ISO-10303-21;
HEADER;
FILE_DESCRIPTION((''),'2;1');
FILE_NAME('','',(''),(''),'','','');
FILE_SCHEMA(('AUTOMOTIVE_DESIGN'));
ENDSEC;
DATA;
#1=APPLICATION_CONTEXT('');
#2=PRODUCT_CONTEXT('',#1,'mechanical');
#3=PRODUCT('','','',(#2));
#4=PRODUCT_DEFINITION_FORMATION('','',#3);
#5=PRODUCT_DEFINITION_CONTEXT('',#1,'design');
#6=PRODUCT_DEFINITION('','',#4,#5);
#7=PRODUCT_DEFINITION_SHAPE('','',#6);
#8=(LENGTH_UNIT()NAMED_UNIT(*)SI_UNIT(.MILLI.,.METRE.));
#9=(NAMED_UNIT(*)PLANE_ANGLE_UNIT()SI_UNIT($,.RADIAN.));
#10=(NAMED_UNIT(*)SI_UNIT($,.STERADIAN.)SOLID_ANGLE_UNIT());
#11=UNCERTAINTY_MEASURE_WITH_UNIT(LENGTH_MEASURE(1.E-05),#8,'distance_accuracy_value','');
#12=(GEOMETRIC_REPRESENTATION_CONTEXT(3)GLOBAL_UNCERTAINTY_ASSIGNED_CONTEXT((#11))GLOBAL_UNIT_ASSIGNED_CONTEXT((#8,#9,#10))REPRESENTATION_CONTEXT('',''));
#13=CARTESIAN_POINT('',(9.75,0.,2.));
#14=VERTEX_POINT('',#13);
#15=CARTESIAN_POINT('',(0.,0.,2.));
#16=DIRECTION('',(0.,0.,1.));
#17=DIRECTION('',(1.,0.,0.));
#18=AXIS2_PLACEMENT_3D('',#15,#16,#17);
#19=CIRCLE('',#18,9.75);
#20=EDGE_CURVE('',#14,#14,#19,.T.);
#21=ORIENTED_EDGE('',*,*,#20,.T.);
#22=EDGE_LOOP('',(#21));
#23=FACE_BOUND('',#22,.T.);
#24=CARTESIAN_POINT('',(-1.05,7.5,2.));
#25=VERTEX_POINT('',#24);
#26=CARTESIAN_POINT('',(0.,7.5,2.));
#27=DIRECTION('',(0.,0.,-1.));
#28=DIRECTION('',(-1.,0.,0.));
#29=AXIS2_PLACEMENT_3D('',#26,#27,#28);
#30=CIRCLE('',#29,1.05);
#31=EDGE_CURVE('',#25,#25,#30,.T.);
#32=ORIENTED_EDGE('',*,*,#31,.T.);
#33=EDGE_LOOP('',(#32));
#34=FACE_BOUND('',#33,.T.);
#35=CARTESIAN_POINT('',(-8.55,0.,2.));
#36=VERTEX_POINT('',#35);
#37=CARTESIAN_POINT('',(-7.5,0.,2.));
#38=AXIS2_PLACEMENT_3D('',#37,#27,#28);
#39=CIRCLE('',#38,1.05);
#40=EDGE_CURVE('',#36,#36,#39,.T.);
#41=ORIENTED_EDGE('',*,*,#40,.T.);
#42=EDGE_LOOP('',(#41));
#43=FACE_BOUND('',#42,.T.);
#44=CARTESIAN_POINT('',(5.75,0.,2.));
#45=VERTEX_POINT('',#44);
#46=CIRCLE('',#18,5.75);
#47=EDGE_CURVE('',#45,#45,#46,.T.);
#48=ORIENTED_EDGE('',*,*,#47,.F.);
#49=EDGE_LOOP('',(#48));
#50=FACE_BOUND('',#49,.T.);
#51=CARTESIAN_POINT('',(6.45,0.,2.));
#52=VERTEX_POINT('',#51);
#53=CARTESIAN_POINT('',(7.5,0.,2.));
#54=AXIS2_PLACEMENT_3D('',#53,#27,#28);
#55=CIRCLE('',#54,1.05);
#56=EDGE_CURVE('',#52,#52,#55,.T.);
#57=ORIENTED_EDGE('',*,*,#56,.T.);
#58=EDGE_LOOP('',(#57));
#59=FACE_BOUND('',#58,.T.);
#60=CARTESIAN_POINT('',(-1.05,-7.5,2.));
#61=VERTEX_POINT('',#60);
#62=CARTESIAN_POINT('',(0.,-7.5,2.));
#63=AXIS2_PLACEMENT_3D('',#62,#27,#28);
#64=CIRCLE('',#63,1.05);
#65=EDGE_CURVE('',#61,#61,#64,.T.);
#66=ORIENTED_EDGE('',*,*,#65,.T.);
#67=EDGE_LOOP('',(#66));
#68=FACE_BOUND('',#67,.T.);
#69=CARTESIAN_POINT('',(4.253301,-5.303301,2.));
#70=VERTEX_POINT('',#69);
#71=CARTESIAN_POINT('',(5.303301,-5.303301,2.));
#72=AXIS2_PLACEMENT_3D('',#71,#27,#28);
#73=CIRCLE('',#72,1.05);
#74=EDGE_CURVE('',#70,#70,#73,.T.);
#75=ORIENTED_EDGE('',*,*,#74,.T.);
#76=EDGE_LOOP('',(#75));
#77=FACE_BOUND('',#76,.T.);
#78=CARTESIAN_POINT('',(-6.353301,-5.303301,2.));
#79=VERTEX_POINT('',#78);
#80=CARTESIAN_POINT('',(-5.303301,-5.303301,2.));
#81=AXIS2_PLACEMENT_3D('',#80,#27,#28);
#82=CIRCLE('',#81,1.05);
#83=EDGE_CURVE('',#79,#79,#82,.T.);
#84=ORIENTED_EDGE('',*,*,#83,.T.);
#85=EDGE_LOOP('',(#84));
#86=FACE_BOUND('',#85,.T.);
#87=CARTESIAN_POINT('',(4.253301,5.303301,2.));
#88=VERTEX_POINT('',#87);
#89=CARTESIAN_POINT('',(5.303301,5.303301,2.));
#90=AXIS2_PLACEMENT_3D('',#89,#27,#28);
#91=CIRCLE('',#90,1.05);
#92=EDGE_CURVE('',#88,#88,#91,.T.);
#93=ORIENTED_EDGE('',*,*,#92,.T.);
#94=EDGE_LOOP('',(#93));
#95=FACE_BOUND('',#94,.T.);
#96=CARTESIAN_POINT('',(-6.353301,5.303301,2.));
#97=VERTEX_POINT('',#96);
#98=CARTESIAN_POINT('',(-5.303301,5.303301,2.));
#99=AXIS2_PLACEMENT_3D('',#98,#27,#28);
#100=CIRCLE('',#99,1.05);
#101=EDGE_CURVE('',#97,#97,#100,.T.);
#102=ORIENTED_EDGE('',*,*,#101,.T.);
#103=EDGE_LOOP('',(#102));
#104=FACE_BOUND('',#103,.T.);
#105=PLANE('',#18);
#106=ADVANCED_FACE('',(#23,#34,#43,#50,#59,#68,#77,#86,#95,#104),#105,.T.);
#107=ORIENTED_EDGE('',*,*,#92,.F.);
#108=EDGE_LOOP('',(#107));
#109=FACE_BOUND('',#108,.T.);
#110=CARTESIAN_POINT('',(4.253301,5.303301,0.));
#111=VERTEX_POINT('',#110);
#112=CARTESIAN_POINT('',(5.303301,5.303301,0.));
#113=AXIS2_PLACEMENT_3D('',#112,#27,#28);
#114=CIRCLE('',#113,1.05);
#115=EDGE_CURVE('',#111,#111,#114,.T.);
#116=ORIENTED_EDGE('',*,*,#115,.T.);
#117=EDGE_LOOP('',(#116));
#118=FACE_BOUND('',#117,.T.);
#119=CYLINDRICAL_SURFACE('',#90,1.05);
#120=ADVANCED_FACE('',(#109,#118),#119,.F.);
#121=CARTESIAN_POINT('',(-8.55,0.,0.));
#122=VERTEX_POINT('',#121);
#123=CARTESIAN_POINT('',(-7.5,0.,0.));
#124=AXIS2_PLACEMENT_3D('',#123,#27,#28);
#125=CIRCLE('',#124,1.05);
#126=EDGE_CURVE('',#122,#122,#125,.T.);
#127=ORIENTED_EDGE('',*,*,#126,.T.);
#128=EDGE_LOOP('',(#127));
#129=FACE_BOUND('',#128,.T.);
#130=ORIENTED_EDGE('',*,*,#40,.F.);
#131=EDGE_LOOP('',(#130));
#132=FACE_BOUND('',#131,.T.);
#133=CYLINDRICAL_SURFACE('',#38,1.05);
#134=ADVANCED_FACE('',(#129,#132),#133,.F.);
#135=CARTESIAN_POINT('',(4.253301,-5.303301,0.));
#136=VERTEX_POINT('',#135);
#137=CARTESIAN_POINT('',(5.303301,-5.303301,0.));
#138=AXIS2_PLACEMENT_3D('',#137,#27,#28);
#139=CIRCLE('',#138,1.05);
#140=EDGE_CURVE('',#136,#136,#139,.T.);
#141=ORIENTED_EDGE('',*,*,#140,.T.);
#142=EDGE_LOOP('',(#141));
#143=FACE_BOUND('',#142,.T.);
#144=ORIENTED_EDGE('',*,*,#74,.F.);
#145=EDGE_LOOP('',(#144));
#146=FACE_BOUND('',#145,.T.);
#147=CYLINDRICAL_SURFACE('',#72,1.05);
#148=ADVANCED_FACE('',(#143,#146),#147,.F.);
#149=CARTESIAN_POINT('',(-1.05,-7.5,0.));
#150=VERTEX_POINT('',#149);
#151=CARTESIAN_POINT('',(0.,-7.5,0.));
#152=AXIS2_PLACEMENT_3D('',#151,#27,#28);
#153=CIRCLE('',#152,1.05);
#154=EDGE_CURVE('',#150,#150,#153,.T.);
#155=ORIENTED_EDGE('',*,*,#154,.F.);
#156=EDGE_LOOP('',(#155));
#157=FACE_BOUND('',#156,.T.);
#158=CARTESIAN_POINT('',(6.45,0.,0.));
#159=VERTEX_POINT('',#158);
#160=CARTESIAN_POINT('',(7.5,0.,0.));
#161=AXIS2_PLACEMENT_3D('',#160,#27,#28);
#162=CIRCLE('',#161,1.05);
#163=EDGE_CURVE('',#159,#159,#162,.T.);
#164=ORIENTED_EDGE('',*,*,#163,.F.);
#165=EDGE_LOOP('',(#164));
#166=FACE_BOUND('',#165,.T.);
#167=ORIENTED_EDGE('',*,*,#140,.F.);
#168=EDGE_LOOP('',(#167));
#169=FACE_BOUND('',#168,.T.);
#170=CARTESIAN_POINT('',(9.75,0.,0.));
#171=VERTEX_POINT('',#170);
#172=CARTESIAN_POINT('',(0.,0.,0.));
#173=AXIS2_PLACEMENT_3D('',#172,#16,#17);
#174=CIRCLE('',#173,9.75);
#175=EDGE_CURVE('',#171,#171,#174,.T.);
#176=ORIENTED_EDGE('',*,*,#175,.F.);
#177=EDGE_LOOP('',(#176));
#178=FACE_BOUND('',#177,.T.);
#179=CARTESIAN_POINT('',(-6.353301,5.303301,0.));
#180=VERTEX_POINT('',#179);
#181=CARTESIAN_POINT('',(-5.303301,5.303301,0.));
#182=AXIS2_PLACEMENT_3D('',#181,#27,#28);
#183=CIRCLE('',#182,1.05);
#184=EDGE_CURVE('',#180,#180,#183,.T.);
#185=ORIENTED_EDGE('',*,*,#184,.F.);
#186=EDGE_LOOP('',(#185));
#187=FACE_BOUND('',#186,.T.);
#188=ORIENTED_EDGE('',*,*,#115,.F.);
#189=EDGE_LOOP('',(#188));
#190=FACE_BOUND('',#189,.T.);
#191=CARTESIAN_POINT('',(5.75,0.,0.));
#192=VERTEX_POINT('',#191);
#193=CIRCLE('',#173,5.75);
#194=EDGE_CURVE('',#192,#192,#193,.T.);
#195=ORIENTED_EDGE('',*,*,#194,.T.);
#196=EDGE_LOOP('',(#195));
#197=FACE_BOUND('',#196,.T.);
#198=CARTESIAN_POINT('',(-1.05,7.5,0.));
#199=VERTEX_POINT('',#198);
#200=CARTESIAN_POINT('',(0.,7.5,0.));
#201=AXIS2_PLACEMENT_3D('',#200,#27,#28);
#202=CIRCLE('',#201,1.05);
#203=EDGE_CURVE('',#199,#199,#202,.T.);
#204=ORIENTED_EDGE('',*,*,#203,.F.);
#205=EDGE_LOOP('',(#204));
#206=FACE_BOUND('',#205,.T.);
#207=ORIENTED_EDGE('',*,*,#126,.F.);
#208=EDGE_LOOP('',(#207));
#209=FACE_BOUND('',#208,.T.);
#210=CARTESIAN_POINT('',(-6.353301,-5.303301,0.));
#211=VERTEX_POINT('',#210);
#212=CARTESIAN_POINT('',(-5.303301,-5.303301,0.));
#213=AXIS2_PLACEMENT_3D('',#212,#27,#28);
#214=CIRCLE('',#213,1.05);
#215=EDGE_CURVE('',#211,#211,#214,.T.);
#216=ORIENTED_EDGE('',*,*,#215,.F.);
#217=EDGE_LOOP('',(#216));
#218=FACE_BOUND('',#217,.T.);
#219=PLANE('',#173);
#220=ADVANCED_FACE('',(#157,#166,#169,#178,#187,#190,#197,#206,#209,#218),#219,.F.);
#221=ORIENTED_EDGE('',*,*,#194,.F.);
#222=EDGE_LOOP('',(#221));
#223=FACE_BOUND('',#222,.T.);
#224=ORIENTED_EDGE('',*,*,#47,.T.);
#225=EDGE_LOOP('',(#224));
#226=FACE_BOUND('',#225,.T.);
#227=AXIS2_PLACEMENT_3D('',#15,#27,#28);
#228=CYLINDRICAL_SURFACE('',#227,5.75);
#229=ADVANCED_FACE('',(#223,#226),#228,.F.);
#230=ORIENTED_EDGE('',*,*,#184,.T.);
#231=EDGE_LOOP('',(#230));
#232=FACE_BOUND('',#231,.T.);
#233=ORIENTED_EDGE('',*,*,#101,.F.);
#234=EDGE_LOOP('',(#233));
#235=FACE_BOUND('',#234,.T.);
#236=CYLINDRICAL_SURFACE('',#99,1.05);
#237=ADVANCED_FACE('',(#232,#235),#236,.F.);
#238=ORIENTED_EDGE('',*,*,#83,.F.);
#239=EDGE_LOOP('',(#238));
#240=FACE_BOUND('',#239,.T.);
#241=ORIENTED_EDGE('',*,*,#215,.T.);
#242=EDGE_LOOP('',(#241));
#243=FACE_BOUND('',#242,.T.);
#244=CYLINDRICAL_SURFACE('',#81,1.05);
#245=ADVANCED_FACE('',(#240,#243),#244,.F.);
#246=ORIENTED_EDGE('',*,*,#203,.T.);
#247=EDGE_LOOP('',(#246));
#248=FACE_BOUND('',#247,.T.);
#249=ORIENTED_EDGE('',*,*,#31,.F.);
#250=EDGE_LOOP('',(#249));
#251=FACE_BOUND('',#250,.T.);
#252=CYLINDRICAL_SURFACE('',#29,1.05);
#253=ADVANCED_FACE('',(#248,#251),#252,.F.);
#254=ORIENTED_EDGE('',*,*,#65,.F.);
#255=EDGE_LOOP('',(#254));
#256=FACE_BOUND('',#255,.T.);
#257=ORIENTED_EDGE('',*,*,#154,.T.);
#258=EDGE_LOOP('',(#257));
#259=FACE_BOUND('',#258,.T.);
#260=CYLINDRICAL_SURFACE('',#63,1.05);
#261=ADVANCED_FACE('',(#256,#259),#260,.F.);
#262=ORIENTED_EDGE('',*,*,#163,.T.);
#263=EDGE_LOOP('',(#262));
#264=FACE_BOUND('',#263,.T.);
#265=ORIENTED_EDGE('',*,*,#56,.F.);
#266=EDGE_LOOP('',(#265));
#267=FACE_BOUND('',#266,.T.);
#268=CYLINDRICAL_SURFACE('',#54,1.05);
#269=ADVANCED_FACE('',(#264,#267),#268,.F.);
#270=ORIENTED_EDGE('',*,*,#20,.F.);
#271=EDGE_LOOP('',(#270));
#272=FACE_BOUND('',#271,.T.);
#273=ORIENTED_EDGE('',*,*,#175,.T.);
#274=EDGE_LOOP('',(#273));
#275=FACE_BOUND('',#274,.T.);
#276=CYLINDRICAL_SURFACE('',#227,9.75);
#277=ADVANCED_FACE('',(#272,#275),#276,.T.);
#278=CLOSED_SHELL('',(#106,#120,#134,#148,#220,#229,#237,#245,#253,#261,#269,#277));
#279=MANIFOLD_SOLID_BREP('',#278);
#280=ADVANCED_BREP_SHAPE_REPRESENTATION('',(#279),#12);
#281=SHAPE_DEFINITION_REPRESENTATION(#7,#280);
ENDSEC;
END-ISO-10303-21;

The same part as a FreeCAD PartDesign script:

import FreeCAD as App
import Part
import Sketcher

doc = App.newDocument("Part")
body = doc.addObject("PartDesign::Body", "Body")

# Sketch on XY plane
sketch1 = doc.addObject("Sketcher::SketchObject", "Sketch")
body.addObject(sketch1)
sketch1.AttachmentSupport = (doc.XY_Plane, [""])
sketch1.MapMode = "FlatFace"
sketch1.addGeometry(Part.Circle(App.Vector(0, 0, 0), App.Vector(0, 0, 1), 10), False)
sketch1.addGeometry(Part.Circle(App.Vector(0, 0, 0), App.Vector(0, 0, 1), 6), False)
sketch1.addConstraint(Sketcher.Constraint("Coincident", 0, 3, -1, 1))
sketch1.addConstraint(Sketcher.Constraint("Coincident", 1, 3, -1, 1))
sketch1.addConstraint(Sketcher.Constraint("Diameter", 0, 19.5))
sketch1.addConstraint(Sketcher.Constraint("Diameter", 1, 11.5))
pad1 = doc.addObject("PartDesign::Pad", "Pad")
body.addObject(pad1)
pad1.Profile = sketch1
pad1.Length = 2

# Sketch on XY plane
sketch2 = doc.addObject("Sketcher::SketchObject", "Sketch001")
body.addObject(sketch2)
sketch2.AttachmentSupport = (doc.XY_Plane, [""])
sketch2.MapMode = "FlatFace"
sketch2.addGeometry(Part.Circle(App.Vector(0, 7.5, 0), App.Vector(0, 0, 1), 1.1), False)
sketch2.addGeometry(Part.Circle(App.Vector(-5.3, 5.3, 0), App.Vector(0, 0, 1), 1.1), False)
sketch2.addGeometry(Part.Circle(App.Vector(-7.5, 0, 0), App.Vector(0, 0, 1), 1.1), False)
sketch2.addGeometry(Part.Circle(App.Vector(-5.3, -5.3, 0), App.Vector(0, 0, 1), 1.1), False)
sketch2.addGeometry(Part.Circle(App.Vector(0, -7.5, 0), App.Vector(0, 0, 1), 1.1), False)
sketch2.addGeometry(Part.Circle(App.Vector(5.3, -5.3, 0), App.Vector(0, 0, 1), 1.1), False)
sketch2.addGeometry(Part.Circle(App.Vector(7.5, 0, 0), App.Vector(0, 0, 1), 1.1), False)
sketch2.addGeometry(Part.Circle(App.Vector(5.3, 5.3, 0), App.Vector(0, 0, 1), 1.1), False)
sketch2.addConstraint(Sketcher.Constraint("Equal", 0, 1))
sketch2.addConstraint(Sketcher.Constraint("Equal", 1, 2))
sketch2.addConstraint(Sketcher.Constraint("Equal", 2, 3))
sketch2.addConstraint(Sketcher.Constraint("Equal", 3, 4))
sketch2.addConstraint(Sketcher.Constraint("Equal", 4, 5))
sketch2.addConstraint(Sketcher.Constraint("Equal", 5, 6))
sketch2.addConstraint(Sketcher.Constraint("Equal", 6, 7))
sketch2.addConstraint(Sketcher.Constraint("Symmetric", 0, 3, 4, 3, -1, 1))
sketch2.addConstraint(Sketcher.Constraint("Symmetric", 1, 3, 5, 3, -1, 1))
sketch2.addConstraint(Sketcher.Constraint("Symmetric", 2, 3, 6, 3, -1, 1))
sketch2.addConstraint(Sketcher.Constraint("Symmetric", 3, 3, 7, 3, -1, 1))
sketch2.addConstraint(Sketcher.Constraint("Symmetric", 3, 3, 5, 3, -2))
sketch2.addConstraint(Sketcher.Constraint("PointOnObject", 0, 3, -2))
sketch2.addConstraint(Sketcher.Constraint("PointOnObject", 2, 3, -1))
sketch2.addConstraint(Sketcher.Constraint("Diameter", 0, 2.1))
sketch2.addConstraint(Sketcher.Constraint("DistanceY", 4, 3, 0, 3, 15.0))
sketch2.addConstraint(Sketcher.Constraint("DistanceX", 2, 3, -1, 1, 7.5))
sketch2.addConstraint(Sketcher.Constraint("DistanceX", 1, 3, -1, 1, 5.303301))
sketch2.addConstraint(Sketcher.Constraint("DistanceY", -1, 1, 1, 3, 5.303301))
pocket1 = doc.addObject("PartDesign::Pocket", "Pocket")
body.addObject(pocket1)
pocket1.Profile = sketch2
pocket1.Type = "ThroughAll"
pocket1.Reversed = True

doc.recompute()
